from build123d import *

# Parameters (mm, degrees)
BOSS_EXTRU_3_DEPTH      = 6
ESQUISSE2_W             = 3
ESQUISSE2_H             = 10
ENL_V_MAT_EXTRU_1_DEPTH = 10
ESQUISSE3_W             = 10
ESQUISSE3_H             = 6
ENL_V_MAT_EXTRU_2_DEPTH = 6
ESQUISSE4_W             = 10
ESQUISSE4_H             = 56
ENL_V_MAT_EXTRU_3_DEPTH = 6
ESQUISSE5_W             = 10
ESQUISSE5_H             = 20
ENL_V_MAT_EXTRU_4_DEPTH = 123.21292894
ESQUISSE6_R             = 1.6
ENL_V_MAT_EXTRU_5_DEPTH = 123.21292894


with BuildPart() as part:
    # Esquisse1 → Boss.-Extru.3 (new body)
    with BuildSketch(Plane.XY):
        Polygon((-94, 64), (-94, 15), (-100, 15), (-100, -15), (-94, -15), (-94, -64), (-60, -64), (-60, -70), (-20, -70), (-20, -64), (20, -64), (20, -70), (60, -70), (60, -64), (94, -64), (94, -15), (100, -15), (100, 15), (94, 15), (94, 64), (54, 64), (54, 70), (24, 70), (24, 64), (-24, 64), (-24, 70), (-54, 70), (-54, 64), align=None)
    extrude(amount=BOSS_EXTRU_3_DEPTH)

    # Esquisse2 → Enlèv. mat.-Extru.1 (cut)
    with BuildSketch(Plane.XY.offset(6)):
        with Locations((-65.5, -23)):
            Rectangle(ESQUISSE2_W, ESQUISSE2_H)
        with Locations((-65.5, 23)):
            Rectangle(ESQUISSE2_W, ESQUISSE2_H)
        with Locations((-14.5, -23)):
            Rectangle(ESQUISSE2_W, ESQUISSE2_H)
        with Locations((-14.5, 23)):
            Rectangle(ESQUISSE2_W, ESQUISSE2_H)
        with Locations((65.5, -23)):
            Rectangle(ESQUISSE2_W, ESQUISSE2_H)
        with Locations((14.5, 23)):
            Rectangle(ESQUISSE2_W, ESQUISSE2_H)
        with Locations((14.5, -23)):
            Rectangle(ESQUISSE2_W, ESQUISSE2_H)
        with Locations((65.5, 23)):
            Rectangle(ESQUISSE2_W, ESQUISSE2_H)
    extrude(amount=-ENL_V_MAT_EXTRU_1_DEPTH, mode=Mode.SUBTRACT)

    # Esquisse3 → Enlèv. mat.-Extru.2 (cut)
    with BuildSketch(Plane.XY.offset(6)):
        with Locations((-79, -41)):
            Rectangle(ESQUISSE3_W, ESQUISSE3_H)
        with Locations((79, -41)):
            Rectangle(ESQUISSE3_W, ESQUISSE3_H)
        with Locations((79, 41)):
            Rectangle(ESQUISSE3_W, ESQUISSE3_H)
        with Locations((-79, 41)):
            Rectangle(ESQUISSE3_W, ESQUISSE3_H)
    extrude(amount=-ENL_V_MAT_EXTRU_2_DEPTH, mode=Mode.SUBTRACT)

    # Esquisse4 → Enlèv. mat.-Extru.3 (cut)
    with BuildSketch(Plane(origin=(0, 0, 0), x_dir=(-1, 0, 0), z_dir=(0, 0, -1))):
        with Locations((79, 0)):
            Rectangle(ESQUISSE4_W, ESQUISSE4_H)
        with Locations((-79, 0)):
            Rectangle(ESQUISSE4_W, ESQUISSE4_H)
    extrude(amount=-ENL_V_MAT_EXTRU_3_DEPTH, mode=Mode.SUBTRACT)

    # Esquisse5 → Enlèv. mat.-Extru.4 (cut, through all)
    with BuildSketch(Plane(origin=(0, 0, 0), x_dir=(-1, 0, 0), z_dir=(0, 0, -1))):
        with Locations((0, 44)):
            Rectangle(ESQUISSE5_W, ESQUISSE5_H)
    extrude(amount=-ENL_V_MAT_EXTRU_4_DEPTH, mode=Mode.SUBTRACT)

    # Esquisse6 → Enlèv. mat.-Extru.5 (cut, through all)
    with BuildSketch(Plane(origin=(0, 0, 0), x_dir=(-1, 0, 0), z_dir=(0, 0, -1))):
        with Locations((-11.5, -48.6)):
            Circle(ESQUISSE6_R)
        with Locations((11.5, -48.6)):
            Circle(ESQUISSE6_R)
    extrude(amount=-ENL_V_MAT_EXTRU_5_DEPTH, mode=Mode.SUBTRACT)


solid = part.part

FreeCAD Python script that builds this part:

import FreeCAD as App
import Part
import Sketcher
from FreeCAD import Vector
Q = App.Units.Quantity

doc = App.newDocument("Part")
body = doc.addObject("PartDesign::Body", "Body")

# Sketch on XY plane
sketch1 = body.newObject("Sketcher::SketchObject", "Sketch")
sketch1.AttachmentSupport = (doc.getObject("XY_Plane"), [""])
sketch1.MapMode = "FlatFace"
sketch1.addGeometry([
    Part.LineSegment(Vector(-94, 64, 0), Vector(-94, 15, 0)),  # 0
    Part.LineSegment(Vector(-94, 15, 0), Vector(-100, 15, 0)),  # 1
    Part.LineSegment(Vector(-100, 15, 0), Vector(-100, -15, 0)),  # 2
    Part.LineSegment(Vector(-100, -15, 0), Vector(-94, -15, 0)),  # 3
    Part.LineSegment(Vector(-94, -15, 0), Vector(-94, -64, 0)),  # 4
    Part.LineSegment(Vector(-94, -64, 0), Vector(-60, -64, 0)),  # 5
    Part.LineSegment(Vector(-60, -64, 0), Vector(-60, -70, 0)),  # 6
    Part.LineSegment(Vector(-60, -70, 0), Vector(-20, -70, 0)),  # 7
    Part.LineSegment(Vector(-20, -70, 0), Vector(-20, -64, 0)),  # 8
    Part.LineSegment(Vector(-20, -64, 0), Vector(20, -64, 0)),  # 9
    Part.LineSegment(Vector(20, -64, 0), Vector(20, -70, 0)),  # 10
    Part.LineSegment(Vector(20, -70, 0), Vector(60, -70, 0)),  # 11
    Part.LineSegment(Vector(60, -70, 0), Vector(60, -64, 0)),  # 12
    Part.LineSegment(Vector(60, -64, 0), Vector(94, -64, 0)),  # 13
    Part.LineSegment(Vector(94, -64, 0), Vector(94, -15, 0)),  # 14
    Part.LineSegment(Vector(94, -15, 0), Vector(100, -15, 0)),  # 15
    Part.LineSegment(Vector(100, -15, 0), Vector(100, 15, 0)),  # 16
    Part.LineSegment(Vector(100, 15, 0), Vector(94, 15, 0)),  # 17
    Part.LineSegment(Vector(94, 15, 0), Vector(94, 64, 0)),  # 18
    Part.LineSegment(Vector(94, 64, 0), Vector(54, 64, 0)),  # 19
    Part.LineSegment(Vector(54, 64, 0), Vector(54, 70, 0)),  # 20
    Part.LineSegment(Vector(54, 70, 0), Vector(24, 70, 0)),  # 21
    Part.LineSegment(Vector(24, 70, 0), Vector(24, 64, 0)),  # 22
    Part.LineSegment(Vector(24, 64, 0), Vector(-24, 64, 0)),  # 23
    Part.LineSegment(Vector(-24, 64, 0), Vector(-24, 70, 0)),  # 24
    Part.LineSegment(Vector(-24, 70, 0), Vector(-54, 70, 0)),  # 25
    Part.LineSegment(Vector(-54, 70, 0), Vector(-54, 64, 0)),  # 26
    Part.LineSegment(Vector(-54, 64, 0), Vector(-94, 64, 0)),  # 27
], False)
sketch1.addConstraint([
    Sketcher.Constraint("Coincident", 0, 2, 1, 1),
    Sketcher.Constraint("Coincident", 1, 2, 2, 1),
    Sketcher.Constraint("Coincident", 2, 2, 3, 1),
    Sketcher.Constraint("Coincident", 3, 2, 4, 1),
    Sketcher.Constraint("Coincident", 4, 2, 5, 1),
    Sketcher.Constraint("Coincident", 5, 2, 6, 1),
    Sketcher.Constraint("Coincident", 6, 2, 7, 1),
    Sketcher.Constraint("Coincident", 7, 2, 8, 1),
    Sketcher.Constraint("Coincident", 8, 2, 9, 1),
    Sketcher.Constraint("Coincident", 9, 2, 10, 1),
    Sketcher.Constraint("Coincident", 10, 2, 11, 1),
    Sketcher.Constraint("Coincident", 11, 2, 12, 1),
    Sketcher.Constraint("Coincident", 12, 2, 13, 1),
    Sketcher.Constraint("Coincident", 13, 2, 14, 1),
    Sketcher.Constraint("Coincident", 14, 2, 15, 1),
    Sketcher.Constraint("Coincident", 15, 2, 16, 1),
    Sketcher.Constraint("Coincident", 16, 2, 17, 1),
    Sketcher.Constraint("Coincident", 17, 2, 18, 1),
    Sketcher.Constraint("Coincident", 18, 2, 19, 1),
    Sketcher.Constraint("Coincident", 19, 2, 20, 1),
    Sketcher.Constraint("Coincident", 20, 2, 21, 1),
    Sketcher.Constraint("Coincident", 21, 2, 22, 1),
    Sketcher.Constraint("Coincident", 22, 2, 23, 1),
    Sketcher.Constraint("Coincident", 23, 2, 24, 1),
    Sketcher.Constraint("Coincident", 24, 2, 25, 1),
    Sketcher.Constraint("Coincident", 25, 2, 26, 1),
    Sketcher.Constraint("Coincident", 26, 2, 27, 1),
    Sketcher.Constraint("Coincident", 27, 2, 0, 1),
    Sketcher.Constraint("Vertical", 0),
    Sketcher.Constraint("Horizontal", 1),
    Sketcher.Constraint("Vertical", 2),
    Sketcher.Constraint("Horizontal", 3),
    Sketcher.Constraint("Vertical", 4),
    Sketcher.Constraint("Horizontal", 5),
    Sketcher.Constraint("Vertical", 6),
    Sketcher.Constraint("Horizontal", 7),
    Sketcher.Constraint("Vertical", 8),
    Sketcher.Constraint("Horizontal", 9),
    Sketcher.Constraint("Vertical", 10),
    Sketcher.Constraint("Horizontal", 11),
    Sketcher.Constraint("Vertical", 12),
    Sketcher.Constraint("Horizontal", 13),
    Sketcher.Constraint("Vertical", 14),
    Sketcher.Constraint("Horizontal", 15),
    Sketcher.Constraint("Vertical", 16),
    Sketcher.Constraint("Horizontal", 17),
    Sketcher.Constraint("Vertical", 18),
    Sketcher.Constraint("Horizontal", 19),
    Sketcher.Constraint("Vertical", 20),
    Sketcher.Constraint("Horizontal", 21),
    Sketcher.Constraint("Vertical", 22),
    Sketcher.Constraint("Horizontal", 23),
    Sketcher.Constraint("Vertical", 24),
    Sketcher.Constraint("Horizontal", 25),
    Sketcher.Constraint("Vertical", 26),
    Sketcher.Constraint("Horizontal", 27),
    Sketcher.Constraint("Symmetric", 0, 2, 14, 2, -1, 1),
    Sketcher.Constraint("Symmetric", 2, 2, 16, 2, -1, 1),
    Sketcher.Constraint("Symmetric", 4, 2, 18, 2, -1, 1),
    Sketcher.Constraint("Symmetric", 7, 2, 10, 2, -2),
    Sketcher.Constraint("Symmetric", 5, 2, 12, 2, -2),
    Sketcher.Constraint("Symmetric", 3, 2, 14, 2, -2),
    Sketcher.Constraint("Symmetric", 21, 2, 24, 2, -2),
    Sketcher.Constraint("Symmetric", 19, 2, 26, 2, -2),
    Sketcher.Constraint("Horizontal", 5, 2, 8, 2),
    Sketcher.Constraint("Horizontal", 19, 2, 22, 2),
    Sketcher.Constraint("Equal", 7, 9),
    Sketcher.Constraint("Equal", 11, 19),
    Sketcher.Constraint("Equal", 25, 2),
    Sketcher.Constraint("Equal", 17, 6),
    Sketcher.Constraint("Equal", 12, 20),
    Sketcher.Constraint("DistanceX", 1, 2, 1, 1, Q("6 mm")),
    Sketcher.Constraint("DistanceX", 5, 1, 5, 2, Q("34 mm")),
    Sketcher.Constraint("DistanceX", 7, 1, 7, 2, Q("40 mm")),
    Sketcher.Constraint("DistanceX", 21, 2, 21, 1, Q("30 mm")),
    Sketcher.Constraint("DistanceY", 0, 2, 0, 1, Q("49 mm")),
])
pad1 = body.newObject("PartDesign::Pad", "Pad")
pad1.Profile = sketch1
pad1.Length = 6

# Sketch on XY plane
sketch2 = body.newObject("Sketcher::SketchObject", "Sketch001")
sketch2.AttachmentSupport = (doc.getObject("XY_Plane"), [""])
sketch2.MapMode = "FlatFace"
sketch2.AttachmentOffset = App.Placement(Vector(0, 0, 6), App.Rotation())
sketch2.addGeometry([
    Part.LineSegment(Vector(-67, -18, 0), Vector(-67, -28, 0)),  # 0
    Part.LineSegment(Vector(-67, -28, 0), Vector(-64, -28, 0)),  # 1
    Part.LineSegment(Vector(-64, -28, 0), Vector(-64, -18, 0)),  # 2
    Part.LineSegment(Vector(-64, -18, 0), Vector(-67, -18, 0)),  # 3
    Part.LineSegment(Vector(-67, 28, 0), Vector(-67, 18, 0)),  # 4
    Part.LineSegment(Vector(-67, 18, 0), Vector(-64, 18, 0)),  # 5
    Part.LineSegment(Vector(-64, 18, 0), Vector(-64, 28, 0)),  # 6
    Part.LineSegment(Vector(-64, 28, 0), Vector(-67, 28, 0)),  # 7
    Part.LineSegment(Vector(-16, -18, 0), Vector(-16, -28, 0)),  # 8
    Part.LineSegment(Vector(-16, -28, 0), Vector(-13, -28, 0)),  # 9
    Part.LineSegment(Vector(-13, -28, 0), Vector(-13, -18, 0)),  # 10
    Part.LineSegment(Vector(-13, -18, 0), Vector(-16, -18, 0)),  # 11
    Part.LineSegment(Vector(-16, 28, 0), Vector(-16, 18, 0)),  # 12
    Part.LineSegment(Vector(-16, 18, 0), Vector(-13, 18, 0)),  # 13
    Part.LineSegment(Vector(-13, 18, 0), Vector(-13, 28, 0)),  # 14
    Part.LineSegment(Vector(-13, 28, 0), Vector(-16, 28, 0)),  # 15
    Part.LineSegment(Vector(64, -18, 0), Vector(64, -28, 0)),  # 16
    Part.LineSegment(Vector(64, -28, 0), Vector(67, -28, 0)),  # 17
    Part.LineSegment(Vector(67, -28, 0), Vector(67, -18, 0)),  # 18
    Part.LineSegment(Vector(67, -18, 0), Vector(64, -18, 0)),  # 19
    Part.LineSegment(Vector(13, 28, 0), Vector(13, 18, 0)),  # 20
    Part.LineSegment(Vector(13, 18, 0), Vector(16, 18, 0)),  # 21
    Part.LineSegment(Vector(16, 18, 0), Vector(16, 28, 0)),  # 22
    Part.LineSegment(Vector(16, 28, 0), Vector(13, 28, 0)),  # 23
    Part.LineSegment(Vector(13, -18, 0), Vector(13, -28, 0)),  # 24
    Part.LineSegment(Vector(13, -28, 0), Vector(16, -28, 0)),  # 25
    Part.LineSegment(Vector(16, -28, 0), Vector(16, -18, 0)),  # 26
    Part.LineSegment(Vector(16, -18, 0), Vector(13, -18, 0)),  # 27
    Part.LineSegment(Vector(64, 28, 0), Vector(64, 18, 0)),  # 28
    Part.LineSegment(Vector(64, 18, 0), Vector(67, 18, 0)),  # 29
    Part.LineSegment(Vector(67, 18, 0), Vector(67, 28, 0)),  # 30
    Part.LineSegment(Vector(67, 28, 0), Vector(64, 28, 0)),  # 31
], False)
sketch2.addConstraint([
    Sketcher.Constraint("Coincident", 0, 2, 1, 1),
    Sketcher.Constraint("Coincident", 1, 2, 2, 1),
    Sketcher.Constraint("Coincident", 2, 2, 3, 1),
    Sketcher.Constraint("Coincident", 3, 2, 0, 1),
    Sketcher.Constraint("Coincident", 4, 2, 5, 1),
    Sketcher.Constraint("Coincident", 5, 2, 6, 1),
    Sketcher.Constraint("Coincident", 6, 2, 7, 1),
    Sketcher.Constraint("Coincident", 7, 2, 4, 1),
    Sketcher.Constraint("Coincident", 8, 2, 9, 1),
    Sketcher.Constraint("Coincident", 9, 2, 10, 1),
    Sketcher.Constraint("Coincident", 10, 2, 11, 1),
    Sketcher.Constraint("Coincident", 11, 2, 8, 1),
    Sketcher.Constraint("Coincident", 12, 2, 13, 1),
    Sketcher.Constraint("Coincident", 13, 2, 14, 1),
    Sketcher.Constraint("Coincident", 14, 2, 15, 1),
    Sketcher.Constraint("Coincident", 15, 2, 12, 1),
    Sketcher.Constraint("Coincident", 16, 2, 17, 1),
    Sketcher.Constraint("Coincident", 17, 2, 18, 1),
    Sketcher.Constraint("Coincident", 18, 2, 19, 1),
    Sketcher.Constraint("Coincident", 19, 2, 16, 1),
    Sketcher.Constraint("Coincident", 20, 2, 21, 1),
    Sketcher.Constraint("Coincident", 21, 2, 22, 1),
    Sketcher.Constraint("Coincident", 22, 2, 23, 1),
    Sketcher.Constraint("Coincident", 23, 2, 20, 1),
    Sketcher.Constraint("Coincident", 24, 2, 25, 1),
    Sketcher.Constraint("Coincident", 25, 2, 26, 1),
    Sketcher.Constraint("Coincident", 26, 2, 27, 1),
    Sketcher.Constraint("Coincident", 27, 2, 24, 1),
    Sketcher.Constraint("Coincident", 28, 2, 29, 1),
    Sketcher.Constraint("Coincident", 29, 2, 30, 1),
    Sketcher.Constraint("Coincident", 30, 2, 31, 1),
    Sketcher.Constraint("Coincident", 31, 2, 28, 1),
    Sketcher.Constraint("Vertical", 0),
    Sketcher.Constraint("Horizontal", 1),
    Sketcher.Constraint("Vertical", 2),
    Sketcher.Constraint("Horizontal", 3),
    Sketcher.Constraint("Vertical", 4),
    Sketcher.Constraint("Horizontal", 5),
    Sketcher.Constraint("Vertical", 6),
    Sketcher.Constraint("Horizontal", 7),
    Sketcher.Constraint("Vertical", 8),
    Sketcher.Constraint("Horizontal", 9),
    Sketcher.Constraint("Vertical", 10),
    Sketcher.Constraint("Horizontal", 11),
    Sketcher.Constraint("Vertical", 12),
    Sketcher.Constraint("Horizontal", 13),
    Sketcher.Constraint("Vertical", 14),
    Sketcher.Constraint("Horizontal", 15),
    Sketcher.Constraint("Vertical", 16),
    Sketcher.Constraint("Horizontal", 17),
    Sketcher.Constraint("Vertical", 18),
    Sketcher.Constraint("Horizontal", 19),
    Sketcher.Constraint("Vertical", 20),
    Sketcher.Constraint("Horizontal", 21),
    Sketcher.Constraint("Vertical", 22),
    Sketcher.Constraint("Horizontal", 23),
    Sketcher.Constraint("Vertical", 24),
    Sketcher.Constraint("Horizontal", 25),
    Sketcher.Constraint("Vertical", 26),
    Sketcher.Constraint("Horizontal", 27),
    Sketcher.Constraint("Vertical", 28),
    Sketcher.Constraint("Horizontal", 29),
    Sketcher.Constraint("Vertical", 30),
    Sketcher.Constraint("Horizontal", 31),
    Sketcher.Constraint("Symmetric", 6, 2, 16, 2, -1, 1),
    Sketcher.Constraint("Symmetric", 4, 2, 18, 2, -1, 1),
    Sketcher.Constraint("Symmetric", 10, 2, 20, 2, -1, 1),
    Sketcher.Constraint("Symmetric", 8, 2, 22, 2, -1, 1),
    Sketcher.Constraint("Symmetric", 14, 2, 24, 2, -1, 1),
    Sketcher.Constraint("Symmetric", 12, 2, 26, 2, -1, 1),
    Sketcher.Constraint("Symmetric", 2, 2, 28, 2, -1, 1),
    Sketcher.Constraint("Symmetric", 0, 2, 30, 2, -1, 1),
    Sketcher.Constraint("Symmetric", 1, 2, 16, 2, -2),
    Sketcher.Constraint("Symmetric", 3, 2, 18, 2, -2),
    Sketcher.Constraint("Symmetric", 13, 2, 20, 2, -2),
    Sketcher.Constraint("Symmetric", 15, 2, 22, 2, -2),
    Sketcher.Constraint("Horizontal", 1, 2, 8, 2),
    Sketcher.Constraint("Horizontal", 3, 2, 10, 2),
    Sketcher.Constraint("Equal", 7, 9),
    Sketcher.Constraint("DistanceX", 1, 1, 1, 2, Q("3 mm")),
    Sketcher.Constraint("DistanceY", 0, 2, 0, 1, Q("10 mm")),
    Sketcher.Constraint("DistanceX", 0, 2, -1, 1, Q("67 mm")),
    Sketcher.Constraint("DistanceY", 0, 2, -1, 1, Q("28 mm")),
    Sketcher.Constraint("DistanceX", 8, 2, -1, 1, Q("16 mm")),
])
pocket1 = body.newObject("PartDesign::Pocket", "Pocket")
pocket1.Profile = sketch2
pocket1.Length = 10

# Sketch on XY plane
sketch3 = body.newObject("Sketcher::SketchObject", "Sketch002")
sketch3.AttachmentSupport = (doc.getObject("XY_Plane"), [""])
sketch3.MapMode = "FlatFace"
sketch3.AttachmentOffset = App.Placement(Vector(0, 0, 6), App.Rotation())
sketch3.addGeometry([
    Part.LineSegment(Vector(-84, -38, 0), Vector(-84, -44, 0)),  # 0
    Part.LineSegment(Vector(-84, -44, 0), Vector(-74, -44, 0)),  # 1
    Part.LineSegment(Vector(-74, -44, 0), Vector(-74, -38, 0)),  # 2
    Part.LineSegment(Vector(-74, -38, 0), Vector(-84, -38, 0)),  # 3
    Part.LineSegment(Vector(74, -38, 0), Vector(74, -44, 0)),  # 4
    Part.LineSegment(Vector(74, -44, 0), Vector(84, -44, 0)),  # 5
    Part.LineSegment(Vector(84, -44, 0), Vector(84, -38, 0)),  # 6
    Part.LineSegment(Vector(84, -38, 0), Vector(74, -38, 0)),  # 7
    Part.LineSegment(Vector(74, 44, 0), Vector(74, 38, 0)),  # 8
    Part.LineSegment(Vector(74, 38, 0), Vector(84, 38, 0)),  # 9
    Part.LineSegment(Vector(84, 38, 0), Vector(84, 44, 0)),  # 10
    Part.LineSegment(Vector(84, 44, 0), Vector(74, 44, 0)),  # 11
    Part.LineSegment(Vector(-84, 44, 0), Vector(-84, 38, 0)),  # 12
    Part.LineSegment(Vector(-84, 38, 0), Vector(-74, 38, 0)),  # 13
    Part.LineSegment(Vector(-74, 38, 0), Vector(-74, 44, 0)),  # 14
    Part.LineSegment(Vector(-74, 44, 0), Vector(-84, 44, 0)),  # 15
], False)
sketch3.addConstraint([
    Sketcher.Constraint("Coincident", 0, 2, 1, 1),
    Sketcher.Constraint("Coincident", 1, 2, 2, 1),
    Sketcher.Constraint("Coincident", 2, 2, 3, 1),
    Sketcher.Constraint("Coincident", 3, 2, 0, 1),
    Sketcher.Constraint("Coincident", 4, 2, 5, 1),
    Sketcher.Constraint("Coincident", 5, 2, 6, 1),
    Sketcher.Constraint("Coincident", 6, 2, 7, 1),
    Sketcher.Constraint("Coincident", 7, 2, 4, 1),
    Sketcher.Constraint("Coincident", 8, 2, 9, 1),
    Sketcher.Constraint("Coincident", 9, 2, 10, 1),
    Sketcher.Constraint("Coincident", 10, 2, 11, 1),
    Sketcher.Constraint("Coincident", 11, 2, 8, 1),
    Sketcher.Constraint("Coincident", 12, 2, 13, 1),
    Sketcher.Constraint("Coincident", 13, 2, 14, 1),
    Sketcher.Constraint("Coincident", 14, 2, 15, 1),
    Sketcher.Constraint("Coincident", 15, 2, 12, 1),
    Sketcher.Constraint("Vertical", 0),
    Sketcher.Constraint("Horizontal", 1),
    Sketcher.Constraint("Vertical", 2),
    Sketcher.Constraint("Horizontal", 3),
    Sketcher.Constraint("Vertical", 4),
    Sketcher.Constraint("Horizontal", 5),
    Sketcher.Constraint("Vertical", 6),
    Sketcher.Constraint("Horizontal", 7),
    Sketcher.Constraint("Vertical", 8),
    Sketcher.Constraint("Horizontal", 9),
    Sketcher.Constraint("Vertical", 10),
    Sketcher.Constraint("Horizontal", 11),
    Sketcher.Constraint("Vertical", 12),
    Sketcher.Constraint("Horizontal", 13),
    Sketcher.Constraint("Vertical", 14),
    Sketcher.Constraint("Horizontal", 15),
    Sketcher.Constraint("Symmetric", 2, 2, 8, 2, -1, 1),
    Sketcher.Constraint("Symmetric", 0, 2, 10, 2, -1, 1),
    Sketcher.Constraint("Symmetric", 6, 2, 12, 2, -1, 1),
    Sketcher.Constraint("Symmetric", 4, 2, 14, 2, -1, 1),
    Sketcher.Constraint("Symmetric", 1, 2, 4, 2, -2),
    Sketcher.Constraint("Symmetric", 3, 2, 6, 2, -2),
    Sketcher.Constraint("DistanceX", 1, 1, 1, 2, Q("10 mm")),
    Sketcher.Constraint("DistanceY", 0, 2, 0, 1, Q("6 mm")),
    Sketcher.Constraint("DistanceX", 0, 2, -1, 1, Q("84 mm")),
    Sketcher.Constraint("DistanceY", 0, 2, -1, 1, Q("44 mm")),
])
pocket2 = body.newObject("PartDesign::Pocket", "Pocket001")
pocket2.Profile = sketch3
pocket2.Length = 6

# Sketch on XY plane
sketch4 = body.newObject("Sketcher::SketchObject", "Sketch003")
sketch4.AttachmentSupport = (doc.getObject("XY_Plane"), [""])
sketch4.MapMode = "FlatFace"
sketch4.addGeometry([
    Part.LineSegment(Vector(-74, 28, 0), Vector(-74, -28, 0)),  # 0
    Part.LineSegment(Vector(-74, -28, 0), Vector(-84, -28, 0)),  # 1
    Part.LineSegment(Vector(-84, -28, 0), Vector(-84, 28, 0)),  # 2
    Part.LineSegment(Vector(-84, 28, 0), Vector(-74, 28, 0)),  # 3
    Part.LineSegment(Vector(84, 28, 0), Vector(84, -28, 0)),  # 4
    Part.LineSegment(Vector(84, -28, 0), Vector(74, -28, 0)),  # 5
    Part.LineSegment(Vector(74, -28, 0), Vector(74, 28, 0)),  # 6
    Part.LineSegment(Vector(74, 28, 0), Vector(84, 28, 0)),  # 7
], False)
sketch4.addConstraint([
    Sketcher.Constraint("Coincident", 0, 2, 1, 1),
    Sketcher.Constraint("Coincident", 1, 2, 2, 1),
    Sketcher.Constraint("Coincident", 2, 2, 3, 1),
    Sketcher.Constraint("Coincident", 3, 2, 0, 1),
    Sketcher.Constraint("Coincident", 4, 2, 5, 1),
    Sketcher.Constraint("Coincident", 5, 2, 6, 1),
    Sketcher.Constraint("Coincident", 6, 2, 7, 1),
    Sketcher.Constraint("Coincident", 7, 2, 4, 1),
    Sketcher.Constraint("Vertical", 0),
    Sketcher.Constraint("Horizontal", 1),
    Sketcher.Constraint("Vertical", 2),
    Sketcher.Constraint("Horizontal", 3),
    Sketcher.Constraint("Vertical", 4),
    Sketcher.Constraint("Horizontal", 5),
    Sketcher.Constraint("Vertical", 6),
    Sketcher.Constraint("Horizontal", 7),
    Sketcher.Constraint("Symmetric", 2, 2, 4, 2, -1, 1),
    Sketcher.Constraint("Symmetric", 0, 2, 6, 2, -1, 1),
    Sketcher.Constraint("Horizontal", 1, 2, 4, 2),
    Sketcher.Constraint("DistanceX", 1, 2, 1, 1, Q("10 mm")),
    Sketcher.Constraint("DistanceY", 0, 2, 0, 1, Q("56 mm")),
    Sketcher.Constraint("DistanceX", 0, 2, -1, 1, Q("74 mm")),
])
pocket3 = body.newObject("PartDesign::Pocket", "Pocket002")
pocket3.Profile = sketch4
pocket3.Length = 6
pocket3.Reversed = True

# Sketch on XY plane
sketch5 = body.newObject("Sketcher::SketchObject", "Sketch004")
sketch5.AttachmentSupport = (doc.getObject("XY_Plane"), [""])
sketch5.MapMode = "FlatFace"
sketch5.addGeometry([
    Part.LineSegment(Vector(5, 54, 0), Vector(5, 34, 0)),
    Part.LineSegment(Vector(5, 34, 0), Vector(-5, 34, 0)),
    Part.LineSegment(Vector(-5, 34, 0), Vector(-5, 54, 0)),
    Part.LineSegment(Vector(-5, 54, 0), Vector(5, 54, 0)),
], False)
sketch5.addConstraint([
    Sketcher.Constraint("Coincident", 0, 2, 1, 1),
    Sketcher.Constraint("Coincident", 1, 2, 2, 1),
    Sketcher.Constraint("Coincident", 2, 2, 3, 1),
    Sketcher.Constraint("Coincident", 3, 2, 0, 1),
    Sketcher.Constraint("Vertical", 0),
    Sketcher.Constraint("Horizontal", 1),
    Sketcher.Constraint("Vertical", 2),
    Sketcher.Constraint("Horizontal", 3),
    Sketcher.Constraint("DistanceX", 1, 2, 1, 1, Q("10 mm")),
    Sketcher.Constraint("DistanceY", 0, 2, 0, 1, Q("20 mm")),
    Sketcher.Constraint("DistanceX", -1, 1, 0, 2, Q("5 mm")),
    Sketcher.Constraint("DistanceY", -1, 1, 0, 2, Q("34 mm")),
])
pocket4 = body.newObject("PartDesign::Pocket", "Pocket003")
pocket4.Profile = sketch5
pocket4.Type = "ThroughAll"
pocket4.Reversed = True

# Sketch on XY plane
sketch6 = body.newObject("Sketcher::SketchObject", "Sketch005")
sketch6.AttachmentSupport = (doc.getObject("XY_Plane"), [""])
sketch6.MapMode = "FlatFace"
sketch6.addGeometry([
    Part.Circle(Vector(11.5, -48.6, 0), Vector(0, 0, 1), 1.6),
    Part.Circle(Vector(-11.5, -48.6, 0), Vector(0, 0, 1), 1.6),
], False)
sketch6.addConstraint([
    Sketcher.Constraint("Equal", 0, 1),
    Sketcher.Constraint("Symmetric", 0, 3, 1, 3, -2),
    Sketcher.Constraint("Diameter", 0, Q("3.2 mm")),
    Sketcher.Constraint("DistanceX", 1, 3, 0, 3, Q("23 mm")),
    Sketcher.Constraint("DistanceY", 0, 3, -1, 1, Q("48.6 mm")),
])
pocket5 = body.newObject("PartDesign::Pocket", "Pocket004")
pocket5.Profile = sketch6
pocket5.Type = "ThroughAll"
pocket5.Reversed = True

doc.recompute()
